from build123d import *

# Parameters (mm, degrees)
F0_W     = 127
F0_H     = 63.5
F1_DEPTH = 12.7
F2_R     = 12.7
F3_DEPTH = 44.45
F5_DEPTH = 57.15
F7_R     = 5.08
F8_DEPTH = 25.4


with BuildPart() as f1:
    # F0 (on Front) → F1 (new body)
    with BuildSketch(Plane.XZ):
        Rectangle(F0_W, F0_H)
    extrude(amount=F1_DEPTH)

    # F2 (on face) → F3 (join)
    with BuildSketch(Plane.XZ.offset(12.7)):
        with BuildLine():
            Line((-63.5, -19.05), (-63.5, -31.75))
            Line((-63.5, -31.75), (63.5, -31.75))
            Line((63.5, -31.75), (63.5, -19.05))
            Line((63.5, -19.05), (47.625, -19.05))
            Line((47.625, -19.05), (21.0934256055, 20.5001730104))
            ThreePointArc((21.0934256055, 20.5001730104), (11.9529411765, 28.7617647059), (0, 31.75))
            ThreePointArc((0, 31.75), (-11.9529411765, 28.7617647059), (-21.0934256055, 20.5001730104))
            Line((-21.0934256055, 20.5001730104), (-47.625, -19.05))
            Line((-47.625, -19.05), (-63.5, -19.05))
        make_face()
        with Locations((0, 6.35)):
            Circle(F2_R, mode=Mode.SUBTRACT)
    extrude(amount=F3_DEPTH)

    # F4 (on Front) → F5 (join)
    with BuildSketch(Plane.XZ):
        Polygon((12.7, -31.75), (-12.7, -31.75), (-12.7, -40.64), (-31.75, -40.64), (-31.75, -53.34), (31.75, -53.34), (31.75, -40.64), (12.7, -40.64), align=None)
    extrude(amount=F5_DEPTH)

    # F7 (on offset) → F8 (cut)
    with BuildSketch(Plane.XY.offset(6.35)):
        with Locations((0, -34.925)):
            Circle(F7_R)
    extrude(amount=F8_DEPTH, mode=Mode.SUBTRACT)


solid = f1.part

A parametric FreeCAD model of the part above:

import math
import FreeCAD as App
import Part
import Sketcher

V = App.Vector
Q = App.Units.Quantity


def add_polygon(sketch, points):
    """Adds a closed chain of lines whose ends are joined by coincident constraints."""
    first, n = sketch.GeometryCount, len(points)
    for a, b in zip(points, points[1:] + points[:1]):
        sketch.addGeometry(Part.LineSegment(App.Vector(*a, 0), App.Vector(*b, 0)), False)
    for i in range(n):
        sketch.addConstraint(Sketcher.Constraint("Coincident", first + i, 2, first + (i + 1) % n, 1))

doc = App.newDocument("Part")
body = doc.addObject("PartDesign::Body", "Body")

sketch1 = body.newObject("Sketcher::SketchObject", "Sketch")
sketch1.AttachmentSupport = (doc.getObject("XZ_Plane"), [""])
sketch1.MapMode = "FlatFace"
add_polygon(sketch1, [(-63.5, 31.75), (-63.5, -31.75), (63.5, -31.75), (63.5, 31.75)])
sketch1.addConstraint(Sketcher.Constraint("Vertical", 0))
sketch1.addConstraint(Sketcher.Constraint("Horizontal", 1))
sketch1.addConstraint(Sketcher.Constraint("Vertical", 2))
sketch1.addConstraint(Sketcher.Constraint("Horizontal", 3))
sketch1.addConstraint(Sketcher.Constraint("Symmetric", 0, 2, 2, 2, -1, 1))
sketch1.addConstraint(Sketcher.Constraint("DistanceX", 1, 1, 1, 2, Q("5 in")))
sketch1.addConstraint(Sketcher.Constraint("DistanceY", 0, 2, 0, 1, Q("2.5 in")))
pad1 = body.newObject("PartDesign::Pad", "Pad")
pad1.Profile = sketch1
pad1.Length = Q("0.5 in")

sketch2 = body.newObject("Sketcher::SketchObject", "Sketch001")
sketch2.AttachmentSupport = (doc.getObject("XZ_Plane"), [""])
sketch2.MapMode = "FlatFace"
sketch2.AttachmentOffset = App.Placement(V(0, 0, 0.5 * 25.4), App.Rotation())
sketch2.addGeometry(Part.LineSegment(V(-63.5, -19.05, 0), V(-63.5, -31.75, 0)), False)
sketch2.addGeometry(Part.LineSegment(V(-63.5, -31.75, 0), V(63.5, -31.75, 0)), False)
sketch2.addGeometry(Part.LineSegment(V(63.5, -31.75, 0), V(63.5, -19.05, 0)), False)
sketch2.addGeometry(Part.LineSegment(V(63.5, -19.05, 0), V(47.625, -19.05, 0)), False)
sketch2.addGeometry(Part.LineSegment(V(47.625, -19.05, 0), V(21.093426, 20.500173, 0)), False)
sketch2.addGeometry(Part.ArcOfCircle(Part.Circle(V(0, 6.35, 0), V(0, 0, 1), 25.4), math.radians(33.855026), math.radians(90)), False)
sketch2.addGeometry(Part.ArcOfCircle(Part.Circle(V(0, 6.35, 0), V(0, 0, 1), 25.4), math.radians(90), math.radians(146.144974)), False)
sketch2.addGeometry(Part.LineSegment(V(-21.093426, 20.500173, 0), V(-47.625, -19.05, 0)), False)
sketch2.addGeometry(Part.LineSegment(V(-47.625, -19.05, 0), V(-63.5, -19.05, 0)), False)
sketch2.addGeometry(Part.Circle(V(0, 6.35, 0), V(0, 0, 1), 12.7), False)
sketch2.addConstraint(Sketcher.Constraint("Coincident", 0, 2, 1, 1))
sketch2.addConstraint(Sketcher.Constraint("Coincident", 1, 2, 2, 1))
sketch2.addConstraint(Sketcher.Constraint("Coincident", 2, 2, 3, 1))
sketch2.addConstraint(Sketcher.Constraint("Coincident", 3, 2, 4, 1))
sketch2.addConstraint(Sketcher.Constraint("Tangent", 4, 2, 5, 1))
sketch2.addConstraint(Sketcher.Constraint("Tangent", 5, 2, 6, 1))
sketch2.addConstraint(Sketcher.Constraint("Tangent", 6, 2, 7, 1))
sketch2.addConstraint(Sketcher.Constraint("Coincident", 7, 2, 8, 1))
sketch2.addConstraint(Sketcher.Constraint("Coincident", 8, 2, 0, 1))
sketch2.addConstraint(Sketcher.Constraint("Vertical", 0))
sketch2.addConstraint(Sketcher.Constraint("Horizontal", 1))
sketch2.addConstraint(Sketcher.Constraint("Vertical", 2))
sketch2.addConstraint(Sketcher.Constraint("Horizontal", 3))
sketch2.addConstraint(Sketcher.Constraint("Horizontal", 8))
sketch2.addConstraint(Sketcher.Constraint("Coincident", 9, 3, 5, 3))
sketch2.addConstraint(Sketcher.Constraint("Equal", 5, 6))
sketch2.addConstraint(Sketcher.Constraint("Symmetric", 4, 2, 6, 2, -2))
sketch2.addConstraint(Sketcher.Constraint("Symmetric", 2, 2, 8, 2, -2))
sketch2.addConstraint(Sketcher.Constraint("PointOnObject", 5, 2, -2))
sketch2.addConstraint(Sketcher.Constraint("Diameter", 9, Q("1 in")))
sketch2.addConstraint(Sketcher.Constraint("Radius", 5, Q("1 in")))
sketch2.addConstraint(Sketcher.Constraint("DistanceX", 1, 1, 1, 2, Q("5 in")))
sketch2.addConstraint(Sketcher.Constraint("DistanceY", 0, 2, 0, 1, Q("0.5 in")))
sketch2.addConstraint(Sketcher.Constraint("DistanceY", 2, 2, 5, 3, Q("1 in")))
sketch2.addConstraint(Sketcher.Constraint("DistanceX", 3, 2, 3, 1, Q("0.625 in")))
sketch2.addConstraint(Sketcher.Constraint("DistanceY", -1, 1, 5, 3, Q("0.25 in")))
pad2 = body.newObject("PartDesign::Pad", "Pad001")
pad2.Profile = sketch2
pad2.Length = Q("1.75 in")

sketch3 = body.newObject("Sketcher::SketchObject", "Sketch002")
sketch3.AttachmentSupport = (doc.getObject("XZ_Plane"), [""])
sketch3.MapMode = "FlatFace"
add_polygon(sketch3, [(12.7, -31.75), (-12.7, -31.75), (-12.7, -40.64), (-31.75, -40.64), (-31.75, -53.34), (31.75, -53.34), (31.75, -40.64), (12.7, -40.64)])
sketch3.addConstraint(Sketcher.Constraint("Horizontal", 0))
sketch3.addConstraint(Sketcher.Constraint("Vertical", 1))
sketch3.addConstraint(Sketcher.Constraint("Horizontal", 2))
sketch3.addConstraint(Sketcher.Constraint("Vertical", 3))
sketch3.addConstraint(Sketcher.Constraint("Horizontal", 4))
sketch3.addConstraint(Sketcher.Constraint("Vertical", 5))
sketch3.addConstraint(Sketcher.Constraint("Horizontal", 6))
sketch3.addConstraint(Sketcher.Constraint("Vertical", 7))
sketch3.addConstraint(Sketcher.Constraint("Symmetric", 2, 2, 5, 2, -2))
sketch3.addConstraint(Sketcher.Constraint("Equal", 2, 6))
sketch3.addConstraint(Sketcher.Constraint("DistanceX", 0, 2, 0, 1, Q("1 in")))
sketch3.addConstraint(Sketcher.Constraint("DistanceX", 4, 1, 4, 2, Q("2.5 in")))
sketch3.addConstraint(Sketcher.Constraint("DistanceY", 3, 2, 3, 1, Q("0.5 in")))
sketch3.addConstraint(Sketcher.Constraint("DistanceY", 1, 2, 1, 1, Q("0.35 in")))
sketch3.addConstraint(Sketcher.Constraint("DistanceY", 1, 2, -1, 1, Q("1.6 in")))
pad3 = body.newObject("PartDesign::Pad", "Pad002")
pad3.Profile = sketch3
pad3.Length = Q("2.25 in")

sketch4 = body.newObject("Sketcher::SketchObject", "Sketch003")
sketch4.AttachmentSupport = (doc.getObject("XY_Plane"), [""])
sketch4.MapMode = "FlatFace"
sketch4.AttachmentOffset = App.Placement(V(0, 0, 0.25 * 25.4), App.Rotation())
sketch4.addGeometry(Part.Circle(V(0, -34.925, 0), V(0, 0, 1), 5.08), False)
sketch4.addConstraint(Sketcher.Constraint("PointOnObject", 0, 3, -2))
sketch4.addConstraint(Sketcher.Constraint("Diameter", 0, Q("0.4 in")))
sketch4.addConstraint(Sketcher.Constraint("DistanceY", 0, 3, -1, 1, Q("1.375 in")))
pocket1 = body.newObject("PartDesign::Pocket", "Pocket")
pocket1.Profile = sketch4
pocket1.Length = Q("1 in")
pocket1.Reversed = True

doc.recompute()
